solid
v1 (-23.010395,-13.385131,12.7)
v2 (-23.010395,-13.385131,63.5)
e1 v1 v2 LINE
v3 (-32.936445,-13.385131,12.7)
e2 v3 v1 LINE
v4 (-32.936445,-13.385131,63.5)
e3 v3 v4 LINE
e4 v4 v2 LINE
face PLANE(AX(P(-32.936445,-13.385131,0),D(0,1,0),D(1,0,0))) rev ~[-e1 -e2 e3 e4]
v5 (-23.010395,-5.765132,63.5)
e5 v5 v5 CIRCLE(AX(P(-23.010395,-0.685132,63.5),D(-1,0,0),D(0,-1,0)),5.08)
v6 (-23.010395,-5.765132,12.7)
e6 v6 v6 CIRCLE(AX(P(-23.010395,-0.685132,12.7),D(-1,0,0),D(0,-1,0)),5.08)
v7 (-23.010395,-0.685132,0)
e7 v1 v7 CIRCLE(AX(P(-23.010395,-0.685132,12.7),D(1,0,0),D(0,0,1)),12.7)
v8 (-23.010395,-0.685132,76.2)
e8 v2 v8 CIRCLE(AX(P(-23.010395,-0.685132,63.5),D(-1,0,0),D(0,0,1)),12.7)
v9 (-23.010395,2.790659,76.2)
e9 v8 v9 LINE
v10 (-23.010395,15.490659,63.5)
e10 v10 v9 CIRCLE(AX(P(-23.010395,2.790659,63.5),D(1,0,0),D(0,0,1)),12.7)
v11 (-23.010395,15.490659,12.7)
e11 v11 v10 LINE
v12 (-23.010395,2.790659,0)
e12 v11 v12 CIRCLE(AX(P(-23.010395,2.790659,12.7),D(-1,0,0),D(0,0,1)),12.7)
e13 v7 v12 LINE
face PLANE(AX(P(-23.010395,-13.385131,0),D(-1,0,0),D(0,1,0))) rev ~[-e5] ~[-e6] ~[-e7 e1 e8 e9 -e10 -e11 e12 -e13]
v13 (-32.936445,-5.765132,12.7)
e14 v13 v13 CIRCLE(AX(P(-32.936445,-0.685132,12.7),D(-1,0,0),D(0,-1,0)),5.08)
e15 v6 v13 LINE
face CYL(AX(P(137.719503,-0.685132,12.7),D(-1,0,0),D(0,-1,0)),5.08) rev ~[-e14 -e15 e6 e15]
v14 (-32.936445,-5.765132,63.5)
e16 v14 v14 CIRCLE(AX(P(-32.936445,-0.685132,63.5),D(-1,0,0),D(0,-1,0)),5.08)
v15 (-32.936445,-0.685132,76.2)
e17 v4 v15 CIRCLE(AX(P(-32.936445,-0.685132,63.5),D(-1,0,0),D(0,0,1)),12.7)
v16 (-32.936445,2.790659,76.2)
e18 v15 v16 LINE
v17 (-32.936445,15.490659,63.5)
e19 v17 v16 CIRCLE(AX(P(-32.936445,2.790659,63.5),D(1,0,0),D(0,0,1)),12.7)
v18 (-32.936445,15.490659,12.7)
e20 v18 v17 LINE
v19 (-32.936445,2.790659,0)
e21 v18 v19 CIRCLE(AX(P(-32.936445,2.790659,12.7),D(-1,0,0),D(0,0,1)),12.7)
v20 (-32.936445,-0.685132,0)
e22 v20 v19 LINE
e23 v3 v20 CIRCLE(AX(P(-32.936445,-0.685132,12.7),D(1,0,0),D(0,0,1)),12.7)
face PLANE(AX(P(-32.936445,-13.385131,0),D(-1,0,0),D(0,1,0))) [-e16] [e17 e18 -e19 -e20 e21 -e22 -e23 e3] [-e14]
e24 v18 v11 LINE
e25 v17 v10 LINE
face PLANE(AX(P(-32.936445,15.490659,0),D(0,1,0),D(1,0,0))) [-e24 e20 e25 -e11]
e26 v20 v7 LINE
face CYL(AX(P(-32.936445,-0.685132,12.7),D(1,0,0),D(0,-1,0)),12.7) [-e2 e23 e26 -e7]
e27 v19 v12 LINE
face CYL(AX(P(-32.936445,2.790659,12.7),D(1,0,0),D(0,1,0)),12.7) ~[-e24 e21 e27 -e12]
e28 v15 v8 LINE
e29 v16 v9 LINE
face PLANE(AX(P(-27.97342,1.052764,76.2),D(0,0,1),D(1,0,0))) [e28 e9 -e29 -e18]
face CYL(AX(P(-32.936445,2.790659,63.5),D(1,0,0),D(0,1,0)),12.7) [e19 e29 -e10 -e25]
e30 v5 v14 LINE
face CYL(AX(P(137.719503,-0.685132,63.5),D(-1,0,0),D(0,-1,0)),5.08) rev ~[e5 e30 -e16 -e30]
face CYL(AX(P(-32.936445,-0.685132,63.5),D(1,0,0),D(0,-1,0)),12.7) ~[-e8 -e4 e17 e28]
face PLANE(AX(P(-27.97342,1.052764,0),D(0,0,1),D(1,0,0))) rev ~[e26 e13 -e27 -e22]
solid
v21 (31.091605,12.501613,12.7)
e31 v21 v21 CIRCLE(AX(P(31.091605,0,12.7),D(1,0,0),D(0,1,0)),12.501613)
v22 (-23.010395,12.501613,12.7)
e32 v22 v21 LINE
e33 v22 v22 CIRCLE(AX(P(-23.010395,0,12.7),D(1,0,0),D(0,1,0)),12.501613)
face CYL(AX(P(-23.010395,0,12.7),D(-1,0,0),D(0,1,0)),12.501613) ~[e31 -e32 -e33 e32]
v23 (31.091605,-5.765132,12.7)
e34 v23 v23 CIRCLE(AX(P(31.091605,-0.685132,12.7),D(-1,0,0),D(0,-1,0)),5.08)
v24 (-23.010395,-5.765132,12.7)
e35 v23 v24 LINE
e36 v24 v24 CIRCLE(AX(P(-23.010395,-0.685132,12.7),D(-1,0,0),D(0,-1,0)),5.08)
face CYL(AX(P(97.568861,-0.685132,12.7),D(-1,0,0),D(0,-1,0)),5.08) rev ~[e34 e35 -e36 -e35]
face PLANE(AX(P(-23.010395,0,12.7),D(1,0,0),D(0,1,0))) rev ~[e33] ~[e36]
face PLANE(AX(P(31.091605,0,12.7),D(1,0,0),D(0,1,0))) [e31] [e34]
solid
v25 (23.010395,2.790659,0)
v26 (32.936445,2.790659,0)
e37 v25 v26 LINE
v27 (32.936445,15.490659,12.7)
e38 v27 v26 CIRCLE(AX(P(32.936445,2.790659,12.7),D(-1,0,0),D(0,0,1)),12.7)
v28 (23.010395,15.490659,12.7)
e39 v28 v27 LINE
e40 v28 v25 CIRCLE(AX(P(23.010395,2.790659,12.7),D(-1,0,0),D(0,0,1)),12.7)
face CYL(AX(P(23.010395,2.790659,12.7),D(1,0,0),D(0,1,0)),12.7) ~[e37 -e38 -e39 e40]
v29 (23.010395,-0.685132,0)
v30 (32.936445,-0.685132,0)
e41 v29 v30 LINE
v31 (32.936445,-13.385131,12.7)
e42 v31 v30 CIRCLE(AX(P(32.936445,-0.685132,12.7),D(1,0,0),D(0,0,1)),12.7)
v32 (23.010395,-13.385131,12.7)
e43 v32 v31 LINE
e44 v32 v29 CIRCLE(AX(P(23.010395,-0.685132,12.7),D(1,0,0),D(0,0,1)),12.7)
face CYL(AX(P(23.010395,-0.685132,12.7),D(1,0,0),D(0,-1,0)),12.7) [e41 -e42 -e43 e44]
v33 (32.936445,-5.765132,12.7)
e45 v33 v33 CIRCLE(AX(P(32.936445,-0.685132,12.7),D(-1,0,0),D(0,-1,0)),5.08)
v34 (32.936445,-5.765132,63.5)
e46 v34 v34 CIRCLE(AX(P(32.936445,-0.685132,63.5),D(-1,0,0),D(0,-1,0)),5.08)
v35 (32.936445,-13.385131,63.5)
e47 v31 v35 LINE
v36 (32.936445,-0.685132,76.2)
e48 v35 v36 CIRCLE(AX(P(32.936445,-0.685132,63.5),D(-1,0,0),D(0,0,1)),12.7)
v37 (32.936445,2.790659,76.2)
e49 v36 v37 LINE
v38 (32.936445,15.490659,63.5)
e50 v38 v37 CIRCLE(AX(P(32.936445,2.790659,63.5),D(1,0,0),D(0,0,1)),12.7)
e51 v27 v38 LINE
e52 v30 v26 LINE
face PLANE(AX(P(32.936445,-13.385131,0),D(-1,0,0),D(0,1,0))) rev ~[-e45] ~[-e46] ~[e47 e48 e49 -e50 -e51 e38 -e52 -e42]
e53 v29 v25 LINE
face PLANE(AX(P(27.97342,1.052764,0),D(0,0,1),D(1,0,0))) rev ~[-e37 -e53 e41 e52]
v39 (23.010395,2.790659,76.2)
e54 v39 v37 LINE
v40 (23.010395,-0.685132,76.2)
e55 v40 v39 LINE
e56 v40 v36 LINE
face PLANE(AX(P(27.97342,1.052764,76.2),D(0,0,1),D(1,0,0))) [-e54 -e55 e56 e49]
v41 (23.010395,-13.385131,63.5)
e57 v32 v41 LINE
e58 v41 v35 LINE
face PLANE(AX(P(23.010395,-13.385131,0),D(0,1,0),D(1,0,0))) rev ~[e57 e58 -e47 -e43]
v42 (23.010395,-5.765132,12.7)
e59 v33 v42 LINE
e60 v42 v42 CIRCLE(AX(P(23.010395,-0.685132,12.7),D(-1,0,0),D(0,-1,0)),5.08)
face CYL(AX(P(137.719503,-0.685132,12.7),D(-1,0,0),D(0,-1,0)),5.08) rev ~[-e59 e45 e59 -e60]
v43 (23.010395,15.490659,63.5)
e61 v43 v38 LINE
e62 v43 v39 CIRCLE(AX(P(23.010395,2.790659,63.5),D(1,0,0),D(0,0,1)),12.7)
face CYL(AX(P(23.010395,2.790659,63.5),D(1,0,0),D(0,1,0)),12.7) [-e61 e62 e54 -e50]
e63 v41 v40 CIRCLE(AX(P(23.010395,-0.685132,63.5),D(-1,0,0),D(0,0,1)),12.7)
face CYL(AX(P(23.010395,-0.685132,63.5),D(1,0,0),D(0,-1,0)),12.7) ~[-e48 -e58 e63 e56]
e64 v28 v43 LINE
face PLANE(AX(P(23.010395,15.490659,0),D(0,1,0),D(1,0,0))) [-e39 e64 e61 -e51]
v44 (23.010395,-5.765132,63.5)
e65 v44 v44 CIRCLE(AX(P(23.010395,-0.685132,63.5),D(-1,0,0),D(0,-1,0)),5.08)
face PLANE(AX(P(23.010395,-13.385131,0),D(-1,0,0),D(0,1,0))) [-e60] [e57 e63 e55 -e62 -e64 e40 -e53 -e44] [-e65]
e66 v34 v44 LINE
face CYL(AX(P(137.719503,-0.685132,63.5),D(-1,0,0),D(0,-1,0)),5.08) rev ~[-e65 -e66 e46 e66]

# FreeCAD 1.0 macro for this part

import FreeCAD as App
import Part
import Sketcher
Q = App.Units.Quantity


def edges_at(feature, points):
    """Names of the edges that pass closest to the given points."""
    edges = feature.Shape.Edges
    near = lambda p: min(range(len(edges)), key=lambda i: edges[i].distToShape(Part.Vertex(*p))[0])
    return sorted({f"Edge{near(p) + 1}" for p in points})

doc = App.newDocument("Part")
body = doc.addObject("PartDesign::Body", "Body")
body.AllowCompound = True

# Sketch on XY plane
sketch1 = body.newObject("Sketcher::SketchObject", "Sketch")
sketch1.AttachmentSupport = (doc.getObject("XY_Plane"), [""])
sketch1.MapMode = "FlatFace"
sketch1.addGeometry([
    Part.LineSegment(App.Vector(-32.936445, 15.490659, 0), App.Vector(-32.936445, -13.385131, 0)),  # 0
    Part.LineSegment(App.Vector(-32.936445, -13.385131, 0), App.Vector(-23.010395, -13.385131, 0)),  # 1
    Part.LineSegment(App.Vector(-23.010395, -13.385131, 0), App.Vector(-23.010395, 15.490659, 0)),  # 2
    Part.LineSegment(App.Vector(-23.010395, 15.490659, 0), App.Vector(-32.936445, 15.490659, 0)),  # 3
    Part.LineSegment(App.Vector(23.010395, 15.490659, 0), App.Vector(23.010395, -13.385131, 0)),  # 4
    Part.LineSegment(App.Vector(23.010395, -13.385131, 0), App.Vector(32.936445, -13.385131, 0)),  # 5
    Part.LineSegment(App.Vector(32.936445, -13.385131, 0), App.Vector(32.936445, 15.490659, 0)),  # 6
    Part.LineSegment(App.Vector(32.936445, 15.490659, 0), App.Vector(23.010395, 15.490659, 0)),  # 7
], False)
sketch1.addConstraint([
    Sketcher.Constraint("Coincident", 0, 2, 1, 1),
    Sketcher.Constraint("Coincident", 1, 2, 2, 1),
    Sketcher.Constraint("Coincident", 2, 2, 3, 1),
    Sketcher.Constraint("Coincident", 3, 2, 0, 1),
    Sketcher.Constraint("Coincident", 4, 2, 5, 1),
    Sketcher.Constraint("Coincident", 5, 2, 6, 1),
    Sketcher.Constraint("Coincident", 6, 2, 7, 1),
    Sketcher.Constraint("Coincident", 7, 2, 4, 1),
    Sketcher.Constraint("Vertical", 0),
    Sketcher.Constraint("Horizontal", 1),
    Sketcher.Constraint("Vertical", 2),
    Sketcher.Constraint("Horizontal", 3),
    Sketcher.Constraint("Vertical", 4),
    Sketcher.Constraint("Horizontal", 5),
    Sketcher.Constraint("Vertical", 6),
    Sketcher.Constraint("Horizontal", 7),
    Sketcher.Constraint("Symmetric", 1, 2, 4, 2, -2),
    Sketcher.Constraint("Symmetric", 3, 2, 6, 2, -2),
    Sketcher.Constraint("DistanceX", 1, 1, 1, 2, 9.926051),
    Sketcher.Constraint("DistanceY", 0, 2, 0, 1, 28.875791),
    Sketcher.Constraint("DistanceY", 0, 2, -1, 1, 13.385131),
    Sketcher.Constraint("DistanceX", 1, 2, 4, 2, 46.020789),
])
pad1 = body.newObject("PartDesign::Pad", "Pad")
pad1.Profile = sketch1
pad1.Length = Q("3 in")
doc.recompute()

fillet = body.newObject("PartDesign::Fillet", "Fillet")
fillet.Base = (pad1, edges_at(pad1, [
    (-27.973, 15.491, 76.2),
    (-27.973, -13.385, 76.2),
    (27.973, 15.491, 76.2),
    (27.973, -13.385, 76.2),
    (27.973, -13.385, 0),
    (-27.973, -13.385, 0),
    (-27.973, 15.491, 0),
    (27.973, 15.491, 0),
]))
fillet.Radius = Q("0.5 in")

# Sketch on YZ plane
sketch2 = body.newObject("Sketcher::SketchObject", "Sketch001")
sketch2.AttachmentSupport = (doc.getObject("YZ_Plane"), [""])
sketch2.MapMode = "FlatFace"
sketch2.AttachmentOffset = App.Placement(App.Vector(0, 0, 32.936446), App.Rotation())
sketch2.addGeometry([
    Part.Circle(App.Vector(-0.685132, 12.7, 0), App.Vector(0, 0, 1), 5.08),
    Part.Circle(App.Vector(-0.685132, 63.5, 0), App.Vector(0, 0, 1), 5.08),
], False)
sketch2.addConstraint([
    Sketcher.Constraint("Equal", 0, 1),
    Sketcher.Constraint("Vertical", 0, 3, 1, 3),
    Sketcher.Constraint("Diameter", 0, Q("0.4 in")),
    Sketcher.Constraint("DistanceY", 0, 3, 1, 3, Q("2 in")),
    Sketcher.Constraint("DistanceY", -1, 1, 0, 3, Q("0.5 in")),
    Sketcher.Constraint("DistanceX", 0, 3, -1, 1, 0.685132),
])
doc.recompute()
hole = body.newObject("PartDesign::Hole", "Hole")
hole.Profile = sketch2
hole.ThreadType = "None"
hole.Diameter = Q("0.4 in")
hole.DepthType = "ThroughAll"
body2 = doc.addObject("PartDesign::Body", "Body001")

# Sketch on YZ plane
sketch3 = body2.newObject("Sketcher::SketchObject", "Sketch002")
sketch3.AttachmentSupport = (doc.getObject("YZ_Plane001"), [""])
sketch3.MapMode = "FlatFace"
sketch3.AttachmentOffset = App.Placement(App.Vector(0, 0, -23.010395), App.Rotation())
sketch3.addGeometry(Part.Circle(App.Vector(0, 12.7, 0), App.Vector(0, 0, 1), 12.501613), False)
sketch3.addConstraint([
    Sketcher.Constraint("PointOnObject", 0, 3, -2),
    Sketcher.Constraint("DistanceY", -1, 1, 0, 3, Q("0.5 in")),
    Sketcher.Constraint("Diameter", 0, 25.003226),
])
pad2 = body2.newObject("PartDesign::Pad", "Pad001")
pad2.Profile = sketch3
pad2.Length = Q("2.13 in")

# Sketch on YZ plane
sketch4 = body2.newObject("Sketcher::SketchObject", "Sketch003")
sketch4.AttachmentSupport = (doc.getObject("YZ_Plane001"), [""])
sketch4.MapMode = "FlatFace"
sketch4.AttachmentOffset = App.Placement(App.Vector(0, 0, 32.936446), App.Rotation())
sketch4.addGeometry([
    Part.Circle(App.Vector(-0.685132, 12.7, 0), App.Vector(0, 0, 1), 5.08),
    Part.Circle(App.Vector(-0.685132, 63.5, 0), App.Vector(0, 0, 1), 5.08),
], False)
sketch4.addConstraint([
    Sketcher.Constraint("Equal", 0, 1),
    Sketcher.Constraint("Vertical", 0, 3, 1, 3),
    Sketcher.Constraint("Diameter", 0, Q("0.4 in")),
    Sketcher.Constraint("DistanceY", 0, 3, 1, 3, Q("2 in")),
    Sketcher.Constraint("DistanceY", -1, 1, 0, 3, Q("0.5 in")),
    Sketcher.Constraint("DistanceX", 0, 3, -1, 1, 0.685132),
])
doc.recompute()
hole2 = body2.newObject("PartDesign::Hole", "Hole001")
hole2.Profile = sketch4
hole2.ThreadType = "None"
hole2.Diameter = Q("0.4 in")
hole2.DepthType = "ThroughAll"

doc.recompute()
